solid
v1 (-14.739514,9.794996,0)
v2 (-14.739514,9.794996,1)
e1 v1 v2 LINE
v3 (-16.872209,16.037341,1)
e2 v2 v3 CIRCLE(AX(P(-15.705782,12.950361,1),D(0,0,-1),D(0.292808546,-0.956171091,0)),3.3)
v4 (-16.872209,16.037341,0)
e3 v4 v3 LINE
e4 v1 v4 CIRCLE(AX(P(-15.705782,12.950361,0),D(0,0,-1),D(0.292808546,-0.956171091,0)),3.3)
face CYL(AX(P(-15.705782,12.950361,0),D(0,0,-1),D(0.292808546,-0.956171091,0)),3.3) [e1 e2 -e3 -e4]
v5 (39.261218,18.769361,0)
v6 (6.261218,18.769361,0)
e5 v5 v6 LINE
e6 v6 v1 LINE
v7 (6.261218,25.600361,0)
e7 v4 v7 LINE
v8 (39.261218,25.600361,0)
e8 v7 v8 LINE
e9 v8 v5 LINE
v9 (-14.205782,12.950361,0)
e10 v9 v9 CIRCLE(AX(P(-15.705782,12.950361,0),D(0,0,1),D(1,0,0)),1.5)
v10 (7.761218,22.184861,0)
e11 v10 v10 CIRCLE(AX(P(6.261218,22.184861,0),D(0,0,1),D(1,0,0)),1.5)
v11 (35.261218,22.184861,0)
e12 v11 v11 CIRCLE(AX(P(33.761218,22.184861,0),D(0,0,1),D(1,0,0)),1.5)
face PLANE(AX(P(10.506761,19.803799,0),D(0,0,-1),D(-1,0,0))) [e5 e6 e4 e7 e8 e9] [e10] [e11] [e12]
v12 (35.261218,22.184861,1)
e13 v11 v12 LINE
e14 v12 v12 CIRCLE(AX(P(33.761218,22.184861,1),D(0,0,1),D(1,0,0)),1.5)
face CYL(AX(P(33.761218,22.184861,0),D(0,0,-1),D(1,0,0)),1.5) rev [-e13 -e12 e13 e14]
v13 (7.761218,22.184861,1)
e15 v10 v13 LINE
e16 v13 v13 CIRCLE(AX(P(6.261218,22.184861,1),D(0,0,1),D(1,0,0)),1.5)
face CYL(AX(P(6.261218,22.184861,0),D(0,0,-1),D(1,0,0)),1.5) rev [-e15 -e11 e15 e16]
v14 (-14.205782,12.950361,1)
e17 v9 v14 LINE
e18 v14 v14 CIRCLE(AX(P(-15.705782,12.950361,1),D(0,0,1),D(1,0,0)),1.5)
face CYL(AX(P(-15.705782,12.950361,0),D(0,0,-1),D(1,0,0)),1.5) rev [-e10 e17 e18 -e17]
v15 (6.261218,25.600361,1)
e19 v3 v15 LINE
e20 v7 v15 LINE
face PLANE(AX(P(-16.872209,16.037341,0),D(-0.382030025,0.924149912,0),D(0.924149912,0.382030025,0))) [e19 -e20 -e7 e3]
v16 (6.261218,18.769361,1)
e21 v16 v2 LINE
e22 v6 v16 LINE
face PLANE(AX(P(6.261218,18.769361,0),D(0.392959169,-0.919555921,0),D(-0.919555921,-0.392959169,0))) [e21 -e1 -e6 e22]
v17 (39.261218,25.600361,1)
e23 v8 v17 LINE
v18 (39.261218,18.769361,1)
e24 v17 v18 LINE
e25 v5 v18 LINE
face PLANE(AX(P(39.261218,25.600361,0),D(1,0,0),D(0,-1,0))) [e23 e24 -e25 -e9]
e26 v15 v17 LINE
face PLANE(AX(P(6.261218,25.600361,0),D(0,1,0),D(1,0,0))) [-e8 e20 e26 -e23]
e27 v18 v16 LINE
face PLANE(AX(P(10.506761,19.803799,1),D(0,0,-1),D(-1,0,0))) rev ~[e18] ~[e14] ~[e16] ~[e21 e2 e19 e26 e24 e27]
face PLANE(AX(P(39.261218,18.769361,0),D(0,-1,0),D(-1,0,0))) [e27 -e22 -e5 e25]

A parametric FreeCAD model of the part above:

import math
import FreeCAD as App
import Part
import Sketcher
from FreeCAD import Vector
Q = App.Units.Quantity

doc = App.newDocument("Part")
body = doc.addObject("PartDesign::Body", "Body")

# Sketch on XY plane
sketch1 = body.newObject("Sketcher::SketchObject", "Sketch")
sketch1.AttachmentSupport = (doc.getObject("XY_Plane"), [""])
sketch1.MapMode = "FlatFace"
sketch1.addGeometry([
    Part.LineSegment(Vector(-14.739514, 9.794996, 0), Vector(6.261218, 18.769361, 0)),  # 0
    Part.LineSegment(Vector(6.261218, 18.769361, 0), Vector(39.261218, 18.769361, 0)),  # 1
    Part.LineSegment(Vector(39.261218, 18.769361, 0), Vector(39.261218, 25.600361, 0)),  # 2
    Part.LineSegment(Vector(39.261218, 25.600361, 0), Vector(6.261218, 25.600361, 0)),  # 3
    Part.LineSegment(Vector(6.261218, 25.600361, 0), Vector(-16.872209, 16.037341, 0)),  # 4
    Part.ArcOfCircle(Part.Circle(Vector(-15.705782, 12.950361, 0), Vector(0, 0, 1), 3.3), math.radians(110.699265), math.radians(287.026175)),  # 5
    Part.Circle(Vector(-15.705782, 12.950361, 0), Vector(0, 0, 1), 1.5),  # 6
    Part.Circle(Vector(33.761218, 22.184861, 0), Vector(0, 0, 1), 1.5),  # 7
    Part.Circle(Vector(6.261218, 22.184861, 0), Vector(0, 0, 1), 1.5),  # 8
], False)
sketch1.addConstraint([
    Sketcher.Constraint("Coincident", 0, 2, 1, 1),
    Sketcher.Constraint("Coincident", 1, 2, 2, 1),
    Sketcher.Constraint("Coincident", 2, 2, 3, 1),
    Sketcher.Constraint("Coincident", 3, 2, 4, 1),
    Sketcher.Constraint("Coincident", 4, 2, 5, 1),
    Sketcher.Constraint("Coincident", 5, 2, 0, 1),
    Sketcher.Constraint("Horizontal", 1),
    Sketcher.Constraint("Vertical", 2),
    Sketcher.Constraint("Horizontal", 3),
    Sketcher.Constraint("Coincident", 6, 3, 5, 3),
    Sketcher.Constraint("Equal", 6, 7),
    Sketcher.Constraint("Equal", 7, 8),
    Sketcher.Constraint("Horizontal", 7, 3, 8, 3),
    Sketcher.Constraint("Vertical", 8, 3, 0, 2),
    Sketcher.Constraint("Vertical", 0, 2, 3, 2),
    Sketcher.Constraint("Diameter", 6, Q("3 mm")),
    Sketcher.Constraint("Radius", 5, Q("3.3 mm")),
    Sketcher.Constraint("DistanceX", 1, 1, 1, 2, Q("33 mm")),
    Sketcher.Constraint("DistanceX", 8, 3, 7, 3, Q("27.5 mm")),
    Sketcher.Constraint("DistanceY", 2, 1, 2, 2, Q("6.831 mm")),
    Sketcher.Constraint("DistanceY", 5, 3, 2, 2, Q("12.65 mm")),
    Sketcher.Constraint("DistanceX", 5, 3, 7, 3, Q("49.467 mm")),
    Sketcher.Constraint("DistanceY", 5, 3, 7, 3, Q("9.2345 mm")),
    Sketcher.Constraint("DistanceY", -1, 1, 5, 3, Q("12.950361 mm")),
    Sketcher.Constraint("DistanceX", 4, 2, -1, 1, Q("16.872209 mm")),
    Sketcher.Constraint("DistanceY", -1, 1, 4, 2, Q("16.037341 mm")),
    Sketcher.Constraint("DistanceX", 5, 3, 5, 2, Q("0.966268 mm")),
])
pad1 = body.newObject("PartDesign::Pad", "Pad")
pad1.Profile = sketch1
pad1.Length = 1

doc.recompute()
